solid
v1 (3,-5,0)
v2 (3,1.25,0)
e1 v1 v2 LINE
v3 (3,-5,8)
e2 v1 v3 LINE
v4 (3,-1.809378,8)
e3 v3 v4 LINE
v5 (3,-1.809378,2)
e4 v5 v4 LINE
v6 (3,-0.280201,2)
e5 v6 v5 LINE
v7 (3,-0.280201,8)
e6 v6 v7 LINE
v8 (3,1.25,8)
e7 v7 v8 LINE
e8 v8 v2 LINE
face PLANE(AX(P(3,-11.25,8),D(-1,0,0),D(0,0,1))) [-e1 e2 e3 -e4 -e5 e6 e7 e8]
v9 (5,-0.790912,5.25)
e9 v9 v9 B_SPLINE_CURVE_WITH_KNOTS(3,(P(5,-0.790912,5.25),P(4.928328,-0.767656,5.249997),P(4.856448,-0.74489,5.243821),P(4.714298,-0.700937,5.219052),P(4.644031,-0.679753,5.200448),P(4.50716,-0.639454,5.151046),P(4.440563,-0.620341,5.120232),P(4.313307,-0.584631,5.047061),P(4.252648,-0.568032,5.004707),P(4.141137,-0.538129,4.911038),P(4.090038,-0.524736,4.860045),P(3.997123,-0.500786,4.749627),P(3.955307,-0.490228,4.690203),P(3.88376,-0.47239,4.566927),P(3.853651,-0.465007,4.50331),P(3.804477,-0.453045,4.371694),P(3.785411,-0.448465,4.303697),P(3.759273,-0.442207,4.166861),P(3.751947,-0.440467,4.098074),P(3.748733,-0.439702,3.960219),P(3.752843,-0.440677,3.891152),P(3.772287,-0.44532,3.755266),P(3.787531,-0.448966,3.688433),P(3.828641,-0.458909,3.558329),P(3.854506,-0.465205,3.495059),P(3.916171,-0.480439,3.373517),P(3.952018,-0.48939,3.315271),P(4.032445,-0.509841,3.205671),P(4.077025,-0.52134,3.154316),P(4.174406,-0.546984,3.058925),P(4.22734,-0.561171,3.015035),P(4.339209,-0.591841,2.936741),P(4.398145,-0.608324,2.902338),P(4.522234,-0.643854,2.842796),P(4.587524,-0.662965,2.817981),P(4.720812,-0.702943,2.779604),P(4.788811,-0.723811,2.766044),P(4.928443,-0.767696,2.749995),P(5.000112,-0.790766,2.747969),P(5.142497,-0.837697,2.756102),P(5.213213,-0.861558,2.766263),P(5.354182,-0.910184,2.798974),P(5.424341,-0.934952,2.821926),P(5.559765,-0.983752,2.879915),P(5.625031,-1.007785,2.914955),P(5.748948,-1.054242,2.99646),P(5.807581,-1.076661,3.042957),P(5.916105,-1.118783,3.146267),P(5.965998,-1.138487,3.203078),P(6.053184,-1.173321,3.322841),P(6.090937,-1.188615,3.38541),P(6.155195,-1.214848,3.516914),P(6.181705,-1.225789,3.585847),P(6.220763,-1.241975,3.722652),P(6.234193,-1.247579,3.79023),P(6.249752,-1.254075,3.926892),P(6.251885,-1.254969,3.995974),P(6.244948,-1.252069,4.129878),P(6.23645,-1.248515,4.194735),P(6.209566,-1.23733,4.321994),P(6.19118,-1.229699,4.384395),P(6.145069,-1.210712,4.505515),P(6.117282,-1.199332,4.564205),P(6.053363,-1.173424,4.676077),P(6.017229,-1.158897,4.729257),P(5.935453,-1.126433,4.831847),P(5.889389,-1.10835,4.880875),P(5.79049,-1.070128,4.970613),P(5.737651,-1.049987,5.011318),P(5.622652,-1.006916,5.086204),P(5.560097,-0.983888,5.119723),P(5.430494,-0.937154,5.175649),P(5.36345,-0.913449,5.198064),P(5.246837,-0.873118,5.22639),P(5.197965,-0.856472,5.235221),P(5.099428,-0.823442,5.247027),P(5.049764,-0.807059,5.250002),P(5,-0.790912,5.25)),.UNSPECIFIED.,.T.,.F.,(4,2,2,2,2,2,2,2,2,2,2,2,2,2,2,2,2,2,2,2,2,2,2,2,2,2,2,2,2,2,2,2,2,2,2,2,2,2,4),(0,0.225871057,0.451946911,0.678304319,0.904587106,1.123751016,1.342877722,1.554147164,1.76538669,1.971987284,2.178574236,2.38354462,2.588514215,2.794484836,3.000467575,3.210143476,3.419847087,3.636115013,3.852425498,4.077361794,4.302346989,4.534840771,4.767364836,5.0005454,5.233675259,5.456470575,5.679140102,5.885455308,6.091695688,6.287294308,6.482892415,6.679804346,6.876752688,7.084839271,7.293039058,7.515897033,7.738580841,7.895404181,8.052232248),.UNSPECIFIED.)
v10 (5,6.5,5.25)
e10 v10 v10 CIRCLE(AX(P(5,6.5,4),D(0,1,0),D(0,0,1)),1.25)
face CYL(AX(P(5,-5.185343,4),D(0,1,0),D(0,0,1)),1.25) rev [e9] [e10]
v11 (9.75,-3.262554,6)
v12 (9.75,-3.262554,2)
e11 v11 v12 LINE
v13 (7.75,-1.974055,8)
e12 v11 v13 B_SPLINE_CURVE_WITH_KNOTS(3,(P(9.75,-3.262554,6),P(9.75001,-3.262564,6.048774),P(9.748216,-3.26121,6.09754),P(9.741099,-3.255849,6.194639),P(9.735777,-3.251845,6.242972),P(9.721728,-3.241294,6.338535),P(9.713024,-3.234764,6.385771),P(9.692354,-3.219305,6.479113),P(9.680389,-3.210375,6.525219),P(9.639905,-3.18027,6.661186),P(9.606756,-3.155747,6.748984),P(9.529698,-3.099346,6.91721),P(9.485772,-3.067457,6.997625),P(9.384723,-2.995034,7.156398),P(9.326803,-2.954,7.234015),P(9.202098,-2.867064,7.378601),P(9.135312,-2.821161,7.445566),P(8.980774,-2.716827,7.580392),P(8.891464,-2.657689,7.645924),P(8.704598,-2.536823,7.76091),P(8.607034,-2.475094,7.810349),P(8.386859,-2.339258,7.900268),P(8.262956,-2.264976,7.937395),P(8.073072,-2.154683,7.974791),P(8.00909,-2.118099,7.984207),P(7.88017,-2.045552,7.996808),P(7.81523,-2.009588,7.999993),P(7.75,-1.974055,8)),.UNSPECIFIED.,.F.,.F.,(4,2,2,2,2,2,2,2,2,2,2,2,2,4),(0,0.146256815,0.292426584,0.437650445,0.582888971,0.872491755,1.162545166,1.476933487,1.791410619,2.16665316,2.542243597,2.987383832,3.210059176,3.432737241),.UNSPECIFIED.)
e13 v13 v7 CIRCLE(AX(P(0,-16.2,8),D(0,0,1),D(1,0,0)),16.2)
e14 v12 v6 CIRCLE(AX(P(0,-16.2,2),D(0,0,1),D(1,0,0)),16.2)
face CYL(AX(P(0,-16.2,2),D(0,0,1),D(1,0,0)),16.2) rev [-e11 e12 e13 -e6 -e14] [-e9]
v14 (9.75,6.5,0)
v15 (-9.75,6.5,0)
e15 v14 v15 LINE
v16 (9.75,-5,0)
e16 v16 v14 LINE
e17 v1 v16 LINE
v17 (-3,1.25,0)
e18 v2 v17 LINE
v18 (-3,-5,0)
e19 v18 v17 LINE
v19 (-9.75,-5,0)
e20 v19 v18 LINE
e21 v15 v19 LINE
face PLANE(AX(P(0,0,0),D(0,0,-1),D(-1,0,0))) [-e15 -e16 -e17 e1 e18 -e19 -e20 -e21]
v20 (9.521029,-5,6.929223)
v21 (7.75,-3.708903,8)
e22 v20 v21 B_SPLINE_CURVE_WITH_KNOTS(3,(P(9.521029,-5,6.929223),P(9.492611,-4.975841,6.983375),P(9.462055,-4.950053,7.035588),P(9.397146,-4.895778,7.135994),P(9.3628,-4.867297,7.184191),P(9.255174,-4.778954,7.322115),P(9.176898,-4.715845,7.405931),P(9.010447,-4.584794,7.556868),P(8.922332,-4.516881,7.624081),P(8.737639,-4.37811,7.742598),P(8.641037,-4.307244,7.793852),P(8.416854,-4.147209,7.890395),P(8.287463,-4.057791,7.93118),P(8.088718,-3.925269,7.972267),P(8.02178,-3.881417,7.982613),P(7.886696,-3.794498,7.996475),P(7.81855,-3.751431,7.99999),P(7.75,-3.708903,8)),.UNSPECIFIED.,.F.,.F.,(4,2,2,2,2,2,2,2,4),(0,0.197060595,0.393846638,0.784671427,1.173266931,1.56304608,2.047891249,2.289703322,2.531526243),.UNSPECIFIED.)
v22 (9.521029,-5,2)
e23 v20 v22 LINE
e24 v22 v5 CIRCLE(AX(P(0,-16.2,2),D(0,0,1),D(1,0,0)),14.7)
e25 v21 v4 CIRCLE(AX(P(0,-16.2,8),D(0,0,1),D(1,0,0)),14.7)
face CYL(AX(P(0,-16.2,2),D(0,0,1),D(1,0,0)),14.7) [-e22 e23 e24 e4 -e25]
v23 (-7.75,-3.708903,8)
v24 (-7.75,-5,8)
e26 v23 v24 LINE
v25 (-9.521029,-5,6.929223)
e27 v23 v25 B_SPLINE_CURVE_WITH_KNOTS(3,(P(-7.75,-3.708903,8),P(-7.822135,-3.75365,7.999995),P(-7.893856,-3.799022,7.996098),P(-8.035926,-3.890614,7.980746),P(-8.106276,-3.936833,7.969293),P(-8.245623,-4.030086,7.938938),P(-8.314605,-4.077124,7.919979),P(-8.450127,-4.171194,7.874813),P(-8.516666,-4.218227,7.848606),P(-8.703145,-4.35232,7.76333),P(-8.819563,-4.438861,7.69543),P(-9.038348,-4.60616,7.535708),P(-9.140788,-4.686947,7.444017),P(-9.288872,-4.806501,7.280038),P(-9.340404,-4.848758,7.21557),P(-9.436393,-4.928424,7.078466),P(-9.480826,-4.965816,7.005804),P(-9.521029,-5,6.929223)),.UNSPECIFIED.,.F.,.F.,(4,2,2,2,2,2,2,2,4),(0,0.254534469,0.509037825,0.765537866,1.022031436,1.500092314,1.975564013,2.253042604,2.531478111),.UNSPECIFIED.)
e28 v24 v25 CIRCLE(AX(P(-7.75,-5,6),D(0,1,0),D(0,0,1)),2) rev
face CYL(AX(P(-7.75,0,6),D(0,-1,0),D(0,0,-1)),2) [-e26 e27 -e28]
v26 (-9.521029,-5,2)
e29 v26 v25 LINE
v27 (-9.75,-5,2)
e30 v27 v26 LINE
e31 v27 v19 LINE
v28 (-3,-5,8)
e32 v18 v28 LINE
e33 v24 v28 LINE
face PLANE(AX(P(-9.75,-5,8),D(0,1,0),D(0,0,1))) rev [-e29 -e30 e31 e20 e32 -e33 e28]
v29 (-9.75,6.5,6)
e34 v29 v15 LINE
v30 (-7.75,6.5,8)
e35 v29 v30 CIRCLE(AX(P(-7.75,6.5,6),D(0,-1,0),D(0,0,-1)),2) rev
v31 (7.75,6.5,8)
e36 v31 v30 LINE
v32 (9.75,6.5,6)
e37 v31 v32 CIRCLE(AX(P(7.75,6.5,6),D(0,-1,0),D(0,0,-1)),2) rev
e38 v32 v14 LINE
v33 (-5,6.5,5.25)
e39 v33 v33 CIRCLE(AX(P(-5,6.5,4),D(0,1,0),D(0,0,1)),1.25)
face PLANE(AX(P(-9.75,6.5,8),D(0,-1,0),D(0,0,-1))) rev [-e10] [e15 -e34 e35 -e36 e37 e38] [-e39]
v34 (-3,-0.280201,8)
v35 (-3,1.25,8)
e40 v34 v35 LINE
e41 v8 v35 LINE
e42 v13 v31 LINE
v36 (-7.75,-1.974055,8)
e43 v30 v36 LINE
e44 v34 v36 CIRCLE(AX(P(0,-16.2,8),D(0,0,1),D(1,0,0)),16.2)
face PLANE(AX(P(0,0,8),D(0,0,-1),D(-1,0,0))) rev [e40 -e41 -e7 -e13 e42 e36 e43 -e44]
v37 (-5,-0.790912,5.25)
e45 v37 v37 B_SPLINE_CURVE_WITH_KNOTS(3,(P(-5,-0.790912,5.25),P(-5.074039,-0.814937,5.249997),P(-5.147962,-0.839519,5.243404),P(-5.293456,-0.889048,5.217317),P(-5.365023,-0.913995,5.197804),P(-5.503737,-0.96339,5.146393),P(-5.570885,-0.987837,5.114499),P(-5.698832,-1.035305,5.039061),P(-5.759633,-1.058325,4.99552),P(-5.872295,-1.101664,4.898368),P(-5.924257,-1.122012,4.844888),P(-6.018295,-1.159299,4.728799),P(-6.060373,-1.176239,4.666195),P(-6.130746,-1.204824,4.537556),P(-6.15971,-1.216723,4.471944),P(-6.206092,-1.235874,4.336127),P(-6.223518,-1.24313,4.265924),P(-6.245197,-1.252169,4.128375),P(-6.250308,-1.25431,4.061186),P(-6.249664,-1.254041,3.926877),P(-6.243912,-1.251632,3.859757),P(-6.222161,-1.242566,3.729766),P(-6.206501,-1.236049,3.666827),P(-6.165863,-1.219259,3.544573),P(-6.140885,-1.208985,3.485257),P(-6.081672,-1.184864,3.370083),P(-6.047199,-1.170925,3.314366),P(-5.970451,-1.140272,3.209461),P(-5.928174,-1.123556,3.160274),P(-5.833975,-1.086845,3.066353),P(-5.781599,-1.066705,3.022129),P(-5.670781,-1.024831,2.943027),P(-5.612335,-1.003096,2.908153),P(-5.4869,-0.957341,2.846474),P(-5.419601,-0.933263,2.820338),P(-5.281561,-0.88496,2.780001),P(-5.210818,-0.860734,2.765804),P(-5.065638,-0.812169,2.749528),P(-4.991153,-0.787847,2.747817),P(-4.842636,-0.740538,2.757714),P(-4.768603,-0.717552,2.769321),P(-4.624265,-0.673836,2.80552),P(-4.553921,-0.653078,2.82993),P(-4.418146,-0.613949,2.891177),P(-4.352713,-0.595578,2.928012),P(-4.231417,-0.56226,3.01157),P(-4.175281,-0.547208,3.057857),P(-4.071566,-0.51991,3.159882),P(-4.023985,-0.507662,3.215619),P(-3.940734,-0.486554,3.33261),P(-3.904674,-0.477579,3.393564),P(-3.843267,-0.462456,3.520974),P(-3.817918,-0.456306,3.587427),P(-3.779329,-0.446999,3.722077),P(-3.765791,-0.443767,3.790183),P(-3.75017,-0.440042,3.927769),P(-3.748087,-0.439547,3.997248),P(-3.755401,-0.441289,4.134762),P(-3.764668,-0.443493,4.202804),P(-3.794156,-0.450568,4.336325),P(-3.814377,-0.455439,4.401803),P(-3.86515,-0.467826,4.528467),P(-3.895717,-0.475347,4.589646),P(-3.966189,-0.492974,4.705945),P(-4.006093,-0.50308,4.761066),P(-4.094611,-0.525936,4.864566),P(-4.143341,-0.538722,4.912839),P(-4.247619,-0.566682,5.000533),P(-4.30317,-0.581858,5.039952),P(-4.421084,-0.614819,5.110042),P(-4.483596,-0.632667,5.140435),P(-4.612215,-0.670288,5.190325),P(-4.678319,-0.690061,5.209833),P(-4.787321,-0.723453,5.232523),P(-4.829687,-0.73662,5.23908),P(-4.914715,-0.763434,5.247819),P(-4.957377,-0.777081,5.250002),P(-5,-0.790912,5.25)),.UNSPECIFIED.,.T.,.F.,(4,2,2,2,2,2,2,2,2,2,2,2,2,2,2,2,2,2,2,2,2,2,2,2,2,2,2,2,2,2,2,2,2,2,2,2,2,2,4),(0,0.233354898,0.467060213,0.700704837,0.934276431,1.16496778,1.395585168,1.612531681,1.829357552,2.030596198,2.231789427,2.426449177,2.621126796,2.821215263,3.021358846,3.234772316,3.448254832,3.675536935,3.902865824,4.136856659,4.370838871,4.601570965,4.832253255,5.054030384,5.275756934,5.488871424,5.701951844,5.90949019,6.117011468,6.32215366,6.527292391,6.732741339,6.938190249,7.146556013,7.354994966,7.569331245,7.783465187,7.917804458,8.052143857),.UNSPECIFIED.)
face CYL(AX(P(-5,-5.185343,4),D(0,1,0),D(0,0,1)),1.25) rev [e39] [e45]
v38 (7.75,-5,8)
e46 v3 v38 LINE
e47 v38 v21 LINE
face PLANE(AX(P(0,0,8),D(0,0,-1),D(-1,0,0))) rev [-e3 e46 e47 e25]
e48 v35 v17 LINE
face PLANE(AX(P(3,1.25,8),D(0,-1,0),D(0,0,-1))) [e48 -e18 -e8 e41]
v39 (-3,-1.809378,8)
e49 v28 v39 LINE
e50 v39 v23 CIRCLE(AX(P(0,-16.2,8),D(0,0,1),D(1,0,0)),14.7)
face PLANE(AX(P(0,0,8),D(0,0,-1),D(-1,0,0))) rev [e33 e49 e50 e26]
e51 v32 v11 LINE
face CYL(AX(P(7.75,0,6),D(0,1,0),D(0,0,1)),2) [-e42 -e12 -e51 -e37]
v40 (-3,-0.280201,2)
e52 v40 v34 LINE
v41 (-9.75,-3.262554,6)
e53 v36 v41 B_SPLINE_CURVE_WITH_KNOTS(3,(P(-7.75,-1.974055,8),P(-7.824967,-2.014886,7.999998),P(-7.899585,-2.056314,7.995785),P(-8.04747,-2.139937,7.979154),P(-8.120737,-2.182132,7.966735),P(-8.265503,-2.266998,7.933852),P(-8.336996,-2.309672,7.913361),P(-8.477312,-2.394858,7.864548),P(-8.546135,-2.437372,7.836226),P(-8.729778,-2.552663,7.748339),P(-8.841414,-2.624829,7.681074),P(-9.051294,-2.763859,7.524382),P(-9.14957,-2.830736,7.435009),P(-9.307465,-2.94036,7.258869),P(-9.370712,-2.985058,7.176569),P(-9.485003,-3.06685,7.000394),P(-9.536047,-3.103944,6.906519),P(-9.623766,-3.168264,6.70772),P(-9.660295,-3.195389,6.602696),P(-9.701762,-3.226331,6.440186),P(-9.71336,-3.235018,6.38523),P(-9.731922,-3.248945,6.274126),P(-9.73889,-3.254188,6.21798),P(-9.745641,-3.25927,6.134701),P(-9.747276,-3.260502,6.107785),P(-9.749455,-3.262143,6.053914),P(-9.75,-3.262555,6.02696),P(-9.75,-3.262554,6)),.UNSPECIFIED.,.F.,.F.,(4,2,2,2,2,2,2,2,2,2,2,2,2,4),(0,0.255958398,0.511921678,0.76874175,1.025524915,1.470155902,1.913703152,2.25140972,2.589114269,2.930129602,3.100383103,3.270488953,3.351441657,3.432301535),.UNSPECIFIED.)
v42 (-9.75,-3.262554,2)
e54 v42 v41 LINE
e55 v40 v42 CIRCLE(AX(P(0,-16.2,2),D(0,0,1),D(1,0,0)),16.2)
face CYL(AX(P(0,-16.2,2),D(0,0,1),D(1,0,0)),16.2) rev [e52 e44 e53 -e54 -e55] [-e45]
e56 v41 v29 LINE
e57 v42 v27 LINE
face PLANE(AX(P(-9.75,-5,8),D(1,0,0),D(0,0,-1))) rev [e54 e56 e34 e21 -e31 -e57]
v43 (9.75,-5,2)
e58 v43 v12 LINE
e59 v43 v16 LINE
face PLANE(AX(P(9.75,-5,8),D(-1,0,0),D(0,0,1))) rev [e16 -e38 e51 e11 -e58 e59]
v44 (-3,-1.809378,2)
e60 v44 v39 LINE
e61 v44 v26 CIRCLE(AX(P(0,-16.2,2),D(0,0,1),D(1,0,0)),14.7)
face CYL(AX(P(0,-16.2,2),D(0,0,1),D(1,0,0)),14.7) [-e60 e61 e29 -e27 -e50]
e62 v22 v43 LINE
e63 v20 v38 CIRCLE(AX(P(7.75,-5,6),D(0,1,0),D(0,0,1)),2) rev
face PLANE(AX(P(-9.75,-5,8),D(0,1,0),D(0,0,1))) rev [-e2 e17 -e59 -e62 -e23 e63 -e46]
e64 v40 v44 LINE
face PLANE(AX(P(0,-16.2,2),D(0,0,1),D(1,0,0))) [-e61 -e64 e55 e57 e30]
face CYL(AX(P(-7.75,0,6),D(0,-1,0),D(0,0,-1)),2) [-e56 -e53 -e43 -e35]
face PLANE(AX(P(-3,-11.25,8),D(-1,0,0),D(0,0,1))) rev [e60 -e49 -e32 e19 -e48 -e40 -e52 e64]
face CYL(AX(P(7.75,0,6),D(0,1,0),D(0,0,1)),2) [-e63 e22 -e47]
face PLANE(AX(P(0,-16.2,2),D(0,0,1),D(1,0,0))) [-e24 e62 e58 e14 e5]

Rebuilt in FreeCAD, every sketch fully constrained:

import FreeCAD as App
import Part
import Sketcher
Q = App.Units.Quantity


def edges_at(feature, points):
    """Names of the edges that pass closest to the given points."""
    edges = feature.Shape.Edges
    near = lambda p: min(range(len(edges)), key=lambda i: edges[i].distToShape(Part.Vertex(*p))[0])
    return sorted({f"Edge{near(p) + 1}" for p in points})


def add_polygon(sketch, points):
    """Adds a closed chain of lines whose ends are joined by coincident constraints."""
    first, n = sketch.GeometryCount, len(points)
    for a, b in zip(points, points[1:] + points[:1]):
        sketch.addGeometry(Part.LineSegment(App.Vector(*a, 0), App.Vector(*b, 0)), False)
    for i in range(n):
        sketch.addConstraint(Sketcher.Constraint("Coincident", first + i, 2, first + (i + 1) % n, 1))

doc = App.newDocument("Part")
params = doc.addObject("Spreadsheet::Sheet", "Params")
for row, (alias, value) in enumerate([
    ("sketch1_width", "19.5 mm"),
    ("sketch1_height", "11.5 mm"),
    ("pad1_length", "8 mm"),
    ("fillet_radius", "2 mm"),
    ("sketch2_diameter", "32.4 mm"),
    ("sketch2_diameter2", "29.4 mm"),
    ("pocket1_length", "6 mm"),
    ("sketch3_diameter", "2.5 mm"),
    ("sketch4_diameter", "2.5 mm"),
    ("sketch5_width", "6 mm"),
    ("sketch5_height", "12.5 mm"),
], start=1):
    params.set(f"A{row}", alias)
    params.set(f"B{row}", "=" + value)
    params.setAlias(f"B{row}", alias)

body = doc.addObject("PartDesign::Body", "Body")

sketch1 = doc.addObject("Sketcher::SketchObject", "Sketch")
body.addObject(sketch1)
sketch1.AttachmentSupport = (doc.XY_Plane, [""])
sketch1.MapMode = "FlatFace"
add_polygon(sketch1, [(-10, 6), (-10, -5), (10, -5), (10, 6)])
sketch1.addConstraint([
    Sketcher.Constraint("Vertical", 0),
    Sketcher.Constraint("Horizontal", 1),
    Sketcher.Constraint("Vertical", 2),
    Sketcher.Constraint("Horizontal", 3),
    Sketcher.Constraint("DistanceX", 1, 1, 1, 2, Q("19.5 mm")),
    Sketcher.Constraint("DistanceY", 0, 2, 0, 1, Q("11.5 mm")),
    Sketcher.Constraint("DistanceY", 0, 2, -1, 1, Q("5 mm")),
    Sketcher.Constraint("DistanceX", 0, 2, -1, 1, Q("9.75 mm")),
])
sketch1.setExpression("Constraints[8]", "Params.sketch1_width")
sketch1.setExpression("Constraints[9]", "Params.sketch1_height")
pad1 = doc.addObject("PartDesign::Pad", "Pad")
body.addObject(pad1)
pad1.Profile = sketch1
pad1.setExpression("Length", "Params.pad1_length")
doc.recompute()

fillet = doc.addObject("PartDesign::Fillet", "Fillet")
body.addObject(fillet)
fillet.Base = (pad1, edges_at(pad1, [(-9.75, 0.75, 8), (9.75, 0.75, 8)]))
fillet.setExpression("Radius", "Params.fillet_radius")

sketch2 = doc.addObject("Sketcher::SketchObject", "Sketch001")
body.addObject(sketch2)
sketch2.AttachmentSupport = (doc.XY_Plane, [""])
sketch2.MapMode = "FlatFace"
sketch2.AttachmentOffset = App.Placement(App.Vector(0, 0, 8), App.Rotation())
sketch2.addGeometry([
    Part.Circle(App.Vector(0, -16, 0), App.Vector(0, 0, 1), 16),
    Part.Circle(App.Vector(0, -16, 0), App.Vector(0, 0, 1), 15),
], False)
sketch2.addConstraint([
    Sketcher.Constraint("Coincident", 1, 3, 0, 3),
    Sketcher.Constraint("PointOnObject", 0, 3, -2),
    Sketcher.Constraint("Diameter", 0, Q("32.4 mm")),
    Sketcher.Constraint("Diameter", 1, Q("29.4 mm")),
    Sketcher.Constraint("DistanceY", 0, 3, -1, 1, Q("16.2 mm")),
])
sketch2.setExpression("Constraints[2]", "Params.sketch2_diameter")
sketch2.setExpression("Constraints[3]", "Params.sketch2_diameter2")
pocket1 = doc.addObject("PartDesign::Pocket", "Pocket")
body.addObject(pocket1)
pocket1.Profile = sketch2
pocket1.setExpression("Length", "Params.pocket1_length")

sketch3 = doc.addObject("Sketcher::SketchObject", "Sketch002")
body.addObject(sketch3)
sketch3.AttachmentSupport = (doc.XZ_Plane, [""])
sketch3.MapMode = "FlatFace"
sketch3.AttachmentOffset = App.Placement(App.Vector(0, 0, -6.5), App.Rotation())
sketch3.addGeometry(Part.Circle(App.Vector(5, 4, 0), App.Vector(0, 0, 1), 1.2), False)
sketch3.addConstraint([
    Sketcher.Constraint("Diameter", 0, Q("2.5 mm")),
    Sketcher.Constraint("DistanceX", -1, 1, 0, 3, Q("5 mm")),
    Sketcher.Constraint("DistanceY", -1, 1, 0, 3, Q("4 mm")),
])
sketch3.setExpression("Constraints[0]", "Params.sketch3_diameter")
pocket2 = doc.addObject("PartDesign::Pocket", "Pocket001")
body.addObject(pocket2)
pocket2.Profile = sketch3
pocket2.Type = "UpToFirst"
pocket2.Reversed = True

sketch4 = doc.addObject("Sketcher::SketchObject", "Sketch003")
body.addObject(sketch4)
sketch4.AttachmentSupport = (doc.XZ_Plane, [""])
sketch4.MapMode = "FlatFace"
sketch4.AttachmentOffset = App.Placement(App.Vector(0, 0, -6.5), App.Rotation())
sketch4.addGeometry(Part.Circle(App.Vector(-5, 4, 0), App.Vector(0, 0, 1), 1.2), False)
sketch4.addConstraint([
    Sketcher.Constraint("Diameter", 0, Q("2.5 mm")),
    Sketcher.Constraint("DistanceX", 0, 3, -1, 1, Q("5 mm")),
    Sketcher.Constraint("DistanceY", -1, 1, 0, 3, Q("4 mm")),
])
sketch4.setExpression("Constraints[0]", "Params.sketch4_diameter")
pocket3 = doc.addObject("PartDesign::Pocket", "Pocket002")
body.addObject(pocket3)
pocket3.Profile = sketch4
pocket3.Type = "UpToFirst"
pocket3.Reversed = True

sketch5 = doc.addObject("Sketcher::SketchObject", "Sketch004")
body.addObject(sketch5)
sketch5.AttachmentSupport = (doc.XY_Plane, [""])
sketch5.MapMode = "FlatFace"
add_polygon(sketch5, [(3, 1), (3, -11), (-3, -11), (-3, 1)])
sketch5.addConstraint([
    Sketcher.Constraint("Vertical", 0),
    Sketcher.Constraint("Horizontal", 1),
    Sketcher.Constraint("Vertical", 2),
    Sketcher.Constraint("Horizontal", 3),
    Sketcher.Constraint("DistanceX", 1, 2, 1, 1, Q("6 mm")),
    Sketcher.Constraint("DistanceY", 0, 2, 0, 1, Q("12.5 mm")),
    Sketcher.Constraint("DistanceX", -1, 1, 0, 2, Q("3 mm")),
    Sketcher.Constraint("DistanceY", 0, 2, -1, 1, Q("11.25 mm")),
])
sketch5.setExpression("Constraints[8]", "Params.sketch5_width")
sketch5.setExpression("Constraints[9]", "Params.sketch5_height")
pocket4 = doc.addObject("PartDesign::Pocket", "Pocket003")
body.addObject(pocket4)
pocket4.Profile = sketch5
pocket4.Type = "ThroughAll"
pocket4.Reversed = True

doc.recompute()
